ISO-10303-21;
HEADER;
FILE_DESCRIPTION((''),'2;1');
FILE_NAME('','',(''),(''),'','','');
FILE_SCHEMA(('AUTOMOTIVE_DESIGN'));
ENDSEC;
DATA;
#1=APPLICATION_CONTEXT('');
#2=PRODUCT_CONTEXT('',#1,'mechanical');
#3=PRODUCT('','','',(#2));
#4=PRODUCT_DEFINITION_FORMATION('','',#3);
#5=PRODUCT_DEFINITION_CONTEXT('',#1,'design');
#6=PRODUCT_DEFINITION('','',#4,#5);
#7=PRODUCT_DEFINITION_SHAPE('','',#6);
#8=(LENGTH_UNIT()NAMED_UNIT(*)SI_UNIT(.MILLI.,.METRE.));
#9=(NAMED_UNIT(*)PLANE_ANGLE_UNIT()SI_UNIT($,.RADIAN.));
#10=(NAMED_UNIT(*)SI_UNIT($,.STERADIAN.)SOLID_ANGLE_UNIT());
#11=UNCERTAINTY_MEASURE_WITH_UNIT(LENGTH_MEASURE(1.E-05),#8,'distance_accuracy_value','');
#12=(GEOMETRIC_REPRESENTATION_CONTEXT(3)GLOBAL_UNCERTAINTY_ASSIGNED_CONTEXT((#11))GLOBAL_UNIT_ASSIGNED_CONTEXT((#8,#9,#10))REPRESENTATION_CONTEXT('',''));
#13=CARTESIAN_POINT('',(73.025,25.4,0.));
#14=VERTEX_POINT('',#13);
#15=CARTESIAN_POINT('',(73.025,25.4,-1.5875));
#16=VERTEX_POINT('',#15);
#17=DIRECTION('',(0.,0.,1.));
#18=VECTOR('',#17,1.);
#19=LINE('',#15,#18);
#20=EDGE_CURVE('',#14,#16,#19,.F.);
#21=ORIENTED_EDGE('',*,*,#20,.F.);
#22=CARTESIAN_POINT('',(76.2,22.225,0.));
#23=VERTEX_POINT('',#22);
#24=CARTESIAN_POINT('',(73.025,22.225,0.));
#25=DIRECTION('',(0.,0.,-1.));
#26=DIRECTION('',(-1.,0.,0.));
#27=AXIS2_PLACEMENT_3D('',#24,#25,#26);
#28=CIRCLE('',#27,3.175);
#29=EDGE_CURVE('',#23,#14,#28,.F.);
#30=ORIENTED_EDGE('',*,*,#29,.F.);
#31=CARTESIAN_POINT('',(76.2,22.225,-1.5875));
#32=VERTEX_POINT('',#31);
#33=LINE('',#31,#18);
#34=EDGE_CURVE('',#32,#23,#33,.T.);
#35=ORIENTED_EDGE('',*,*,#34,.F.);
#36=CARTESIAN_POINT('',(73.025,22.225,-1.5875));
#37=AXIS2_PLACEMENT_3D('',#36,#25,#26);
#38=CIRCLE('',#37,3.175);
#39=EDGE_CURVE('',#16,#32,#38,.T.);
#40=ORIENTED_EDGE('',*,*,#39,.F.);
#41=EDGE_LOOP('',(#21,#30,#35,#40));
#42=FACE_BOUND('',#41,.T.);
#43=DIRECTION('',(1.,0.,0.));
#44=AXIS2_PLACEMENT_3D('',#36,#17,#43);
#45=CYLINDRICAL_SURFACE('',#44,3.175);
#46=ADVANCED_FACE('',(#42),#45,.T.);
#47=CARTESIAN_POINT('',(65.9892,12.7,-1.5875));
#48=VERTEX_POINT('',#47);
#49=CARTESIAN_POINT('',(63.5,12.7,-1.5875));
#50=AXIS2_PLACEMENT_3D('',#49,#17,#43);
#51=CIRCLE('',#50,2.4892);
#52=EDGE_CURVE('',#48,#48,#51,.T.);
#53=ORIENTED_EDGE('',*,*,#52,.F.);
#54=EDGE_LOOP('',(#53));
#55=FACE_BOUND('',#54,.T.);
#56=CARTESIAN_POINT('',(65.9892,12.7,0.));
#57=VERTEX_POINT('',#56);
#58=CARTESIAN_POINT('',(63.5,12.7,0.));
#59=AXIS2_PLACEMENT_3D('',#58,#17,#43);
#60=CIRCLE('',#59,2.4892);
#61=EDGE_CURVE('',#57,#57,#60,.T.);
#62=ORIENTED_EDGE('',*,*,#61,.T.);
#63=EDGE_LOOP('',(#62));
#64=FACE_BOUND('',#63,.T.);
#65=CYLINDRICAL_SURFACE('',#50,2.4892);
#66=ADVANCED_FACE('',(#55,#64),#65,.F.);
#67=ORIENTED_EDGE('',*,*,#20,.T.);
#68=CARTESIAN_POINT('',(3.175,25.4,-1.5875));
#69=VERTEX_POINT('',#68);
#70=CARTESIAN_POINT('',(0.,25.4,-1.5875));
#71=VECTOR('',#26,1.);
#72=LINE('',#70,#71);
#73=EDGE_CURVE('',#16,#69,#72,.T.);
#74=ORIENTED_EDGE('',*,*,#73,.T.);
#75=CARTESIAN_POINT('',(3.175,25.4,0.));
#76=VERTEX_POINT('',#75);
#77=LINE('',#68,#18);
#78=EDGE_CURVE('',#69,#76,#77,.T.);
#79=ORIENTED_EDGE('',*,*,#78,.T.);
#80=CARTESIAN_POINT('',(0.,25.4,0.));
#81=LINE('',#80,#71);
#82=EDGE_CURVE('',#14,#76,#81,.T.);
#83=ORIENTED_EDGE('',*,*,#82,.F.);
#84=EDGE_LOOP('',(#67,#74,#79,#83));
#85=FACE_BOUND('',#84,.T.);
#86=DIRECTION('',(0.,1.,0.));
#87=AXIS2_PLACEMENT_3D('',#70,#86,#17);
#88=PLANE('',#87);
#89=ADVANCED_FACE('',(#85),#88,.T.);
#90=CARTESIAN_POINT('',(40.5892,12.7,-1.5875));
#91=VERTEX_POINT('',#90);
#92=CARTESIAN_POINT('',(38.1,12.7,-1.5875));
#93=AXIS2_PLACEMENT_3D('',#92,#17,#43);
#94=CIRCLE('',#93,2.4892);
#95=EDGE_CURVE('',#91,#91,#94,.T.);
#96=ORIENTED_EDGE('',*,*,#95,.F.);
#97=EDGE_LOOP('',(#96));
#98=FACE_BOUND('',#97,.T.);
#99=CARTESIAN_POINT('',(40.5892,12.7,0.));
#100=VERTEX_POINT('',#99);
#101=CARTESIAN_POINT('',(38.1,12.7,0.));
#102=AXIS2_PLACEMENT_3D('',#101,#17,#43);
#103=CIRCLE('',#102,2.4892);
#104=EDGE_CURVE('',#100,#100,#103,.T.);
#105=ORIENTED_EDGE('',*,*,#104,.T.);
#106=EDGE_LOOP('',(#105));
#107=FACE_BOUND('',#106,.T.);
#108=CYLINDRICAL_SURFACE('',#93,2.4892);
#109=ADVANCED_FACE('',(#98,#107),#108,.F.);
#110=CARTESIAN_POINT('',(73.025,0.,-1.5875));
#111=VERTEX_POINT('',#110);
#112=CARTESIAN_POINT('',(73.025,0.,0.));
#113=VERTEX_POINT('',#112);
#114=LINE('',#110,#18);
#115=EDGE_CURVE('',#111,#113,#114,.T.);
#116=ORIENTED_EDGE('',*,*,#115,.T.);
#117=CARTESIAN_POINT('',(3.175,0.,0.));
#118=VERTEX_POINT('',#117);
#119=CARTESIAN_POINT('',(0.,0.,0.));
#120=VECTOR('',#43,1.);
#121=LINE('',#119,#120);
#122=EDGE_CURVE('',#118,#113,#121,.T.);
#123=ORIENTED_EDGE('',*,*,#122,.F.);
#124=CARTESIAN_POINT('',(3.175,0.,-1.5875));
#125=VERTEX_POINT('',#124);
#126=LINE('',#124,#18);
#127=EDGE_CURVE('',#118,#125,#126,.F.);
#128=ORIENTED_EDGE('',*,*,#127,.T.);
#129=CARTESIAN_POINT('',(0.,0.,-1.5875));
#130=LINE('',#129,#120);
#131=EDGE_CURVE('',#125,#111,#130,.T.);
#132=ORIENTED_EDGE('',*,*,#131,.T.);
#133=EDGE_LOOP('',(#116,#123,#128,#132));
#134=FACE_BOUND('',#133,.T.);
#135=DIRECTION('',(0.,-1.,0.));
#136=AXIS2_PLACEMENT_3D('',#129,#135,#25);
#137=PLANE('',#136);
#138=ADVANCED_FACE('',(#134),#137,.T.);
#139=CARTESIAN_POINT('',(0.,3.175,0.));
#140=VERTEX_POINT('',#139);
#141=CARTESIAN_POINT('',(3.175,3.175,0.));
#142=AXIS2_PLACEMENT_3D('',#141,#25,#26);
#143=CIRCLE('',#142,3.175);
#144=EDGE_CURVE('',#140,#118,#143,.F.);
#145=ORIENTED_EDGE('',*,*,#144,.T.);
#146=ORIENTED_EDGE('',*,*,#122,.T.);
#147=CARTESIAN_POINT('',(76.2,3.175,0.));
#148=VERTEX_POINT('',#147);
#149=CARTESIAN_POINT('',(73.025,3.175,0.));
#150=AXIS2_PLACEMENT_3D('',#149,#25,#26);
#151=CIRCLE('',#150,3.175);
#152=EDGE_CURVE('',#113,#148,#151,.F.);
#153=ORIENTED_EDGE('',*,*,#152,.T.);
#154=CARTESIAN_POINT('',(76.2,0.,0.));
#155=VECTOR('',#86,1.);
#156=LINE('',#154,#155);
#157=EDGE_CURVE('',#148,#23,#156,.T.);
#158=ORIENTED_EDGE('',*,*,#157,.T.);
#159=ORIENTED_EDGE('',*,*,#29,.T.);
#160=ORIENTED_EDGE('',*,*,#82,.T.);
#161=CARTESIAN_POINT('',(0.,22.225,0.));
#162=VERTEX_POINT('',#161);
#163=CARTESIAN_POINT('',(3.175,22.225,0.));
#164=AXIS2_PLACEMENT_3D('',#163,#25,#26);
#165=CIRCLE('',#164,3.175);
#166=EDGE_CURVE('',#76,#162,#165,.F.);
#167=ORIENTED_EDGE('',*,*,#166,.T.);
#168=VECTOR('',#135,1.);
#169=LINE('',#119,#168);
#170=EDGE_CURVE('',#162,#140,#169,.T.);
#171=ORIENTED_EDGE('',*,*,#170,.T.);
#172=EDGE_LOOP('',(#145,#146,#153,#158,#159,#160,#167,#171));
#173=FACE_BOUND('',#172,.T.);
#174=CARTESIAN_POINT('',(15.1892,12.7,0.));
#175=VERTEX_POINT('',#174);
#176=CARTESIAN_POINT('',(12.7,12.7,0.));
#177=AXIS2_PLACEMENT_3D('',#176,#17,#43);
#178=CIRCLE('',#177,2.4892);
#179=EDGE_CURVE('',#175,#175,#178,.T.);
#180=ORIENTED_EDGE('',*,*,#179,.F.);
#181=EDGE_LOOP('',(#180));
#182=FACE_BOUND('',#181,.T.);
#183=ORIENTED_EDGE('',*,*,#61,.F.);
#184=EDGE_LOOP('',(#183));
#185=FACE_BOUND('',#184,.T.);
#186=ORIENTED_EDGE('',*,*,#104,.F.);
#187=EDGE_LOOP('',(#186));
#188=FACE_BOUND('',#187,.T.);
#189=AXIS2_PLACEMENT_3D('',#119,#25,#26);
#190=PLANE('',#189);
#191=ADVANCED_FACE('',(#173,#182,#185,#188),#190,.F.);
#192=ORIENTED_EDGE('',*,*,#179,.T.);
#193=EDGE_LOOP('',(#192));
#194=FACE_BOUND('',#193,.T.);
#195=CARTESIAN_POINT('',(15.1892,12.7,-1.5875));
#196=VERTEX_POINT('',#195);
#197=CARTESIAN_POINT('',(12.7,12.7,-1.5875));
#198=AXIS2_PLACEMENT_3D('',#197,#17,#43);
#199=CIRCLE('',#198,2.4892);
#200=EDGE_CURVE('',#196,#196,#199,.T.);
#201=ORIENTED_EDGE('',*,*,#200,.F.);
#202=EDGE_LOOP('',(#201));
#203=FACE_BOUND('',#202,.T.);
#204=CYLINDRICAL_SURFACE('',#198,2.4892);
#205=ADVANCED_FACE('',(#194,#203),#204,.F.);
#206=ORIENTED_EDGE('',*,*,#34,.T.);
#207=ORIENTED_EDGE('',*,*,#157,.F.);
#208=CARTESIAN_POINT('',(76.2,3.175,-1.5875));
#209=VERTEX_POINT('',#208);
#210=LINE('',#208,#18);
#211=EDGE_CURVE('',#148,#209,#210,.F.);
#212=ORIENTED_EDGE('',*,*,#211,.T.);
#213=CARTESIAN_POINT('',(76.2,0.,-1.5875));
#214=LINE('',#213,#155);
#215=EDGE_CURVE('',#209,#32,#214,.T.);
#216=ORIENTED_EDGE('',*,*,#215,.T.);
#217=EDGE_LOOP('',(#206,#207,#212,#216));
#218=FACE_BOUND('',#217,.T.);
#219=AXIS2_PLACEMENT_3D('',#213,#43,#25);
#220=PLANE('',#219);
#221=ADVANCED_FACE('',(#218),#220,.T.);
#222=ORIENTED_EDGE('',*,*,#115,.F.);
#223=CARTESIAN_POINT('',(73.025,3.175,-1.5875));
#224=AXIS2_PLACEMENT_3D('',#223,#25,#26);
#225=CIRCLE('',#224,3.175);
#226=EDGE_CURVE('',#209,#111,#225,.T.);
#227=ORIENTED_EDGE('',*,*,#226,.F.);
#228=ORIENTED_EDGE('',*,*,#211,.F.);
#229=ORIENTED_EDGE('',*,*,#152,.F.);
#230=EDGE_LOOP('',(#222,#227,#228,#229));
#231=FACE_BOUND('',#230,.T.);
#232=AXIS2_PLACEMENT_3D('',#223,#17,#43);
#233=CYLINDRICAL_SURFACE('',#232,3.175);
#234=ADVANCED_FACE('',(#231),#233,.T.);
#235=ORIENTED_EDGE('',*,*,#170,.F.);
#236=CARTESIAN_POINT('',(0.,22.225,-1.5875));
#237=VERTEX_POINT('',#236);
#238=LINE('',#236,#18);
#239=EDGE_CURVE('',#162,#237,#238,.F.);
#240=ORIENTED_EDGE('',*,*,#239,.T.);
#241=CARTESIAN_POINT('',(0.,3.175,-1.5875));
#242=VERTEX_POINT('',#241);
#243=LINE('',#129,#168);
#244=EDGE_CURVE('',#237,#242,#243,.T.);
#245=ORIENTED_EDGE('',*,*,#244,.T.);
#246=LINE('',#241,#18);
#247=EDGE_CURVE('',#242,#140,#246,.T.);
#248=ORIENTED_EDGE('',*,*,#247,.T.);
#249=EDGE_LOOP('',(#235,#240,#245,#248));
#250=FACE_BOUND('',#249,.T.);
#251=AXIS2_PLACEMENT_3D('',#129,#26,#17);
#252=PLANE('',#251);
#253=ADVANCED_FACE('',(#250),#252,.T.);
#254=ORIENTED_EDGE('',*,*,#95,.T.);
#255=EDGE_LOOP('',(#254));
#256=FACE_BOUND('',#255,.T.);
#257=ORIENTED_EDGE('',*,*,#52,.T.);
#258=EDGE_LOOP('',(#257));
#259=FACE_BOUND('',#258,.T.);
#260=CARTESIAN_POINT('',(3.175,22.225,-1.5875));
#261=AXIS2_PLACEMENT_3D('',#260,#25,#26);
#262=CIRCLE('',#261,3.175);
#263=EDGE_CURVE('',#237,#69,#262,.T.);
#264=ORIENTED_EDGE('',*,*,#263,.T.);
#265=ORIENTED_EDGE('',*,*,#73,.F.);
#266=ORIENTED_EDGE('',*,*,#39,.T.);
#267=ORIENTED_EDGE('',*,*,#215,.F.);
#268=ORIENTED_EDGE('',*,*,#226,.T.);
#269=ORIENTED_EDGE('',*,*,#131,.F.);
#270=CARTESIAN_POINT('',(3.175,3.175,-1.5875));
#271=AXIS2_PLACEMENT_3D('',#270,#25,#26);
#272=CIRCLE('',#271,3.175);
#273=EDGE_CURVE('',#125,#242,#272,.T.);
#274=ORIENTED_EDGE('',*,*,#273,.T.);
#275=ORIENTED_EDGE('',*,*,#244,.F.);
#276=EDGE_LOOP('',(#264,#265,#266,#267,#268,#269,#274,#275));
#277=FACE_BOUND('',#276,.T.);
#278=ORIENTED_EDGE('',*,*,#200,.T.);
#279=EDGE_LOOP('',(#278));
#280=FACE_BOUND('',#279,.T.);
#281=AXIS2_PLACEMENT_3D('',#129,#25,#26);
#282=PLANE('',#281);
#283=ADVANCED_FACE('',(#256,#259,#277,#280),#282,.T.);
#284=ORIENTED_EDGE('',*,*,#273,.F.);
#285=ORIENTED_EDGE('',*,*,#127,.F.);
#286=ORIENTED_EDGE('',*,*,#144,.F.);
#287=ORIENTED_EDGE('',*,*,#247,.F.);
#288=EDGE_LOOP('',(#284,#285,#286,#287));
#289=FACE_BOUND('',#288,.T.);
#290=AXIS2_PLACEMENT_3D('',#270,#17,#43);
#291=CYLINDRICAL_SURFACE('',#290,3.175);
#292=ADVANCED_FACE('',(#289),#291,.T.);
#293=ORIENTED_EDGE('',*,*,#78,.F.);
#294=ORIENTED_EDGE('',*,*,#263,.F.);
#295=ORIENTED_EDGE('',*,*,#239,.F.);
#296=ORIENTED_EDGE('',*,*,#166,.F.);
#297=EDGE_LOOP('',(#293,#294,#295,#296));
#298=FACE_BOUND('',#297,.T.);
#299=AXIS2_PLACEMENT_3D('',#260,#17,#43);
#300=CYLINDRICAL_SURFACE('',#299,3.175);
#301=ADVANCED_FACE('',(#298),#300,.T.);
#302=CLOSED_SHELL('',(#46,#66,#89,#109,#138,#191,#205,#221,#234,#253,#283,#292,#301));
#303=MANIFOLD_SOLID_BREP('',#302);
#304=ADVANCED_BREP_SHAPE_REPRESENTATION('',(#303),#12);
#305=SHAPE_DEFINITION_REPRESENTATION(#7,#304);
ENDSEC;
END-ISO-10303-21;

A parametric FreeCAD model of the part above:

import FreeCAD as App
import Part
import Sketcher
Q = App.Units.Quantity


def edges_at(feature, points):
    """Names of the edges that pass closest to the given points."""
    edges = feature.Shape.Edges
    near = lambda p: min(range(len(edges)), key=lambda i: edges[i].distToShape(Part.Vertex(*p))[0])
    return sorted({f"Edge{near(p) + 1}" for p in points})

doc = App.newDocument("Part")
body = doc.addObject("PartDesign::Body", "Body")

# Sketch on XY plane
sketch1 = doc.addObject("Sketcher::SketchObject", "Sketch")
body.addObject(sketch1)
sketch1.AttachmentSupport = (doc.XY_Plane, [""])
sketch1.MapMode = "FlatFace"
sketch1.addGeometry([
    Part.LineSegment(App.Vector(0, 25, 0), App.Vector(0, 0, 0)),
    Part.LineSegment(App.Vector(0, 0, 0), App.Vector(76, 0, 0)),
    Part.LineSegment(App.Vector(76, 0, 0), App.Vector(76, 25, 0)),
    Part.LineSegment(App.Vector(76, 25, 0), App.Vector(0, 25, 0)),
], False)
sketch1.addConstraint([
    Sketcher.Constraint("Coincident", 0, 2, 1, 1),
    Sketcher.Constraint("Coincident", 1, 2, 2, 1),
    Sketcher.Constraint("Coincident", 2, 2, 3, 1),
    Sketcher.Constraint("Coincident", 3, 2, 0, 1),
    Sketcher.Constraint("Vertical", 0),
    Sketcher.Constraint("Horizontal", 1),
    Sketcher.Constraint("Vertical", 2),
    Sketcher.Constraint("Horizontal", 3),
    Sketcher.Constraint("Coincident", 0, 2, -1, 1),
    Sketcher.Constraint("DistanceX", 1, 1, 1, 2, Q("3 in")),
    Sketcher.Constraint("DistanceY", 0, 2, 0, 1, Q("1 in")),
])
pad1 = doc.addObject("PartDesign::Pad", "Pad")
body.addObject(pad1)
pad1.Profile = sketch1
pad1.Length = Q("0.0625 in")
pad1.Reversed = True

# Sketch on XY plane
sketch2 = doc.addObject("Sketcher::SketchObject", "Sketch001")
body.addObject(sketch2)
sketch2.AttachmentSupport = (doc.XY_Plane, [""])
sketch2.MapMode = "FlatFace"
sketch2.addGeometry([
    Part.Circle(App.Vector(12.7, 12.7, 0), App.Vector(0, 0, 1), 2.5),  # 0
    Part.Circle(App.Vector(38.1, 12.7, 0), App.Vector(0, 0, 1), 2.5),  # 1
    Part.Circle(App.Vector(63.5, 12.7, 0), App.Vector(0, 0, 1), 2.5),  # 2
    Part.Circle(App.Vector(88.9, 12.7, 0), App.Vector(0, 0, 1), 2.5),  # 3
    Part.Circle(App.Vector(114.3, 12.7, 0), App.Vector(0, 0, 1), 2.5),  # 4
], False)
sketch2.addConstraint([
    Sketcher.Constraint("Equal", 0, 1),
    Sketcher.Constraint("Equal", 1, 2),
    Sketcher.Constraint("Equal", 2, 3),
    Sketcher.Constraint("Equal", 3, 4),
    Sketcher.Constraint("Horizontal", 0, 3, 1, 3),
    Sketcher.Constraint("Horizontal", 1, 3, 2, 3),
    Sketcher.Constraint("Horizontal", 2, 3, 3, 3),
    Sketcher.Constraint("Horizontal", 3, 3, 4, 3),
    Sketcher.Constraint("Diameter", 0, Q("0.196 in")),
    Sketcher.Constraint("DistanceX", 0, 3, 1, 3, Q("1 in")),
    Sketcher.Constraint("DistanceX", 1, 3, 2, 3, Q("1 in")),
    Sketcher.Constraint("DistanceX", 2, 3, 3, 3, Q("1 in")),
    Sketcher.Constraint("DistanceX", 3, 3, 4, 3, Q("1 in")),
    Sketcher.Constraint("DistanceX", -1, 1, 0, 3, Q("0.5 in")),
    Sketcher.Constraint("DistanceY", -1, 1, 0, 3, Q("0.5 in")),
])
pocket1 = doc.addObject("PartDesign::Pocket", "Pocket")
body.addObject(pocket1)
pocket1.Profile = sketch2
pocket1.Type = "ThroughAll"
doc.recompute()

fillet = doc.addObject("PartDesign::Fillet", "Fillet")
body.addObject(fillet)
fillet.Base = (pocket1, edges_at(pocket1, [
    (0, 25.4, -0.794),
    (76.2, 25.4, -0.794),
    (76.2, 0, -0.794),
    (0, 0, -0.794),
]))
fillet.Radius = Q("0.125 in")

doc.recompute()
